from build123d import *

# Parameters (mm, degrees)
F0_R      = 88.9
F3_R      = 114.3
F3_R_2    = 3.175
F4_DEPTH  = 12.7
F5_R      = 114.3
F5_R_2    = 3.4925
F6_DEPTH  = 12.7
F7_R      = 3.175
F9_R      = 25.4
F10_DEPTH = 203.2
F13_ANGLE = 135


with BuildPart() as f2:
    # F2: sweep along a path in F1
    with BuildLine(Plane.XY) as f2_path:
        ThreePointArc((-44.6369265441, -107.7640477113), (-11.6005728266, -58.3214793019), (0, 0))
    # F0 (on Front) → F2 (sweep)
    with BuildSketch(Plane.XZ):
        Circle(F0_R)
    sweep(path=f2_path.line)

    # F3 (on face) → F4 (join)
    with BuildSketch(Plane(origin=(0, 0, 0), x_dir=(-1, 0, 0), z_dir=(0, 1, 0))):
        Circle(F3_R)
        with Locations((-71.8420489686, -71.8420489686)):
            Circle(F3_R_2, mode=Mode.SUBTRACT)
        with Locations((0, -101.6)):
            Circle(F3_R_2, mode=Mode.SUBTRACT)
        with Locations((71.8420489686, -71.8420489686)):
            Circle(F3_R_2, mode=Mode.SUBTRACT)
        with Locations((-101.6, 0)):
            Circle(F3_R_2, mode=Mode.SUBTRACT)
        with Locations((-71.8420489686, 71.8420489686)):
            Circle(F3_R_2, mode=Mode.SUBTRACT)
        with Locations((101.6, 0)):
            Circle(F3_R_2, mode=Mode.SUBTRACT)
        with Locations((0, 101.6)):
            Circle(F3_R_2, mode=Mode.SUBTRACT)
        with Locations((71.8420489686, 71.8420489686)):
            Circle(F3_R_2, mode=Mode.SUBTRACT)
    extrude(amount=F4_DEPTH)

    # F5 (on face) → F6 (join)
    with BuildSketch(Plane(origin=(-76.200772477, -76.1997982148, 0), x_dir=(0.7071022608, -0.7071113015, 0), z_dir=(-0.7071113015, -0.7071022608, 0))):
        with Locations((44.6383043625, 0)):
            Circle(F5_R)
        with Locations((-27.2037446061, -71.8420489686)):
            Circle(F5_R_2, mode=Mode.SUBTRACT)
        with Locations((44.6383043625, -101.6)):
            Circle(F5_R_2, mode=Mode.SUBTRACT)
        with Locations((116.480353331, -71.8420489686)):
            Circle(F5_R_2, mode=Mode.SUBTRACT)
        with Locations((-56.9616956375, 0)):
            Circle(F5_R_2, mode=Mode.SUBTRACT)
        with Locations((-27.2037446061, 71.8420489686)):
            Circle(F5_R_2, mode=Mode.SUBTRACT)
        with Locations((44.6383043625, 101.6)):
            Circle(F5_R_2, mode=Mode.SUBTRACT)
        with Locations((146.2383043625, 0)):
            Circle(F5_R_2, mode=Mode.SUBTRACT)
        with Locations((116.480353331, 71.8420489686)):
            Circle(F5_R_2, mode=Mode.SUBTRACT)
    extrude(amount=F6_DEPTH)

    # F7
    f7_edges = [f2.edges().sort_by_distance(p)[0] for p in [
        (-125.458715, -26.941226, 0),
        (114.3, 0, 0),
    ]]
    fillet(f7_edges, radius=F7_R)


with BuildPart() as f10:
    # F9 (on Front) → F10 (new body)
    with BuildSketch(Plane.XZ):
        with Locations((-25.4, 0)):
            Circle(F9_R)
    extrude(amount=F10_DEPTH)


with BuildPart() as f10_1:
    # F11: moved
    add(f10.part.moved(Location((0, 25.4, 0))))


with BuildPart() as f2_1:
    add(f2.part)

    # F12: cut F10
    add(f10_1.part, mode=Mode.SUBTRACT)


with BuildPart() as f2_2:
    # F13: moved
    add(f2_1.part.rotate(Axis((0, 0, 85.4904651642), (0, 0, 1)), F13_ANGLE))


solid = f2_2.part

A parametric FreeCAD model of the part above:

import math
import FreeCAD as App
import Part
import Sketcher
from FreeCAD import Vector
Q = App.Units.Quantity


def edges_at(feature, points):
    """Names of the edges that pass closest to the given points."""
    edges = feature.Shape.Edges
    near = lambda p: min(range(len(edges)), key=lambda i: edges[i].distToShape(Part.Vertex(*p))[0])
    return sorted({f"Edge{near(p) + 1}" for p in points})

doc = App.newDocument("Part")
body = doc.addObject("PartDesign::Body", "Body")

# Sketch on XZ plane
sketch1 = doc.addObject("Sketcher::SketchObject", "Sketch")
body.addObject(sketch1)
sketch1.AttachmentSupport = (doc.XZ_Plane, [""])
sketch1.MapMode = "FlatFace"
sketch1.addGeometry(Part.Circle(Vector(0, 0, 0), Vector(0, 0, 1), 88.9), False)
sketch1.addConstraint(Sketcher.Constraint("Coincident", 0, 3, -1, 1))
sketch1.addConstraint(Sketcher.Constraint("Diameter", 0, Q("7 in")))

# Sketch on XY plane
sketch2 = doc.addObject("Sketcher::SketchObject", "Sketch001")
body.addObject(sketch2)
sketch2.AttachmentSupport = (doc.XY_Plane, [""])
sketch2.MapMode = "FlatFace"
sketch2.addGeometry(Part.ArcOfCircle(Part.Circle(Vector(-152.4, -0.000974, 0), Vector(0, 0, 1), 152.4), math.radians(-45), math.radians(0.000366)), False)
sketch2.addConstraint(Sketcher.Constraint("Coincident", 0, 2, -1, 1))
sketch2.addConstraint(Sketcher.Constraint("Radius", 0, Q("6 in")))
sketch2.addConstraint(Sketcher.Constraint("DistanceY", 0, 3, -1, 1, Q("0.000974 mm")))
sketch2.addConstraint(Sketcher.Constraint("DistanceX", 0, 1, -1, 1, Q("44.636927 mm")))
doc.recompute()

additivepipe = doc.addObject("PartDesign::AdditivePipe", "AdditivePipe")
body.addObject(additivepipe)
additivepipe.Profile = sketch1
additivepipe.Spine = (sketch2, ["Edge1"])

# Sketch on XZ plane
sketch3 = doc.addObject("Sketcher::SketchObject", "Sketch002")
body.addObject(sketch3)
sketch3.AttachmentSupport = (doc.XZ_Plane, [""])
sketch3.MapMode = "FlatFace"
sketch3.addGeometry(Part.Circle(Vector(0, 0, 0), Vector(0, 0, 1), 114.3), False)
sketch3.addGeometry(Part.Circle(Vector(71.842049, -71.842049, 0), Vector(0, 0, 1), 3.175), False)
sketch3.addGeometry(Part.Circle(Vector(0, -101.6, 0), Vector(0, 0, 1), 3.175), False)
sketch3.addGeometry(Part.Circle(Vector(101.6, 0, 0), Vector(0, 0, 1), 3.175), False)
sketch3.addGeometry(Part.Circle(Vector(-71.842049, -71.842049, 0), Vector(0, 0, 1), 3.175), False)
sketch3.addGeometry(Part.Circle(Vector(-101.6, 0, 0), Vector(0, 0, 1), 3.175), False)
sketch3.addGeometry(Part.Circle(Vector(71.842049, 71.842049, 0), Vector(0, 0, 1), 3.175), False)
sketch3.addGeometry(Part.Circle(Vector(0, 101.6, 0), Vector(0, 0, 1), 3.175), False)
sketch3.addGeometry(Part.Circle(Vector(-71.842049, 71.842049, 0), Vector(0, 0, 1), 3.175), False)
sketch3.addConstraint(Sketcher.Constraint("Coincident", 0, 3, -1, 1))
sketch3.addConstraint(Sketcher.Constraint("Equal", 1, 2))
sketch3.addConstraint(Sketcher.Constraint("Equal", 2, 3))
sketch3.addConstraint(Sketcher.Constraint("Equal", 3, 4))
sketch3.addConstraint(Sketcher.Constraint("Equal", 4, 5))
sketch3.addConstraint(Sketcher.Constraint("Equal", 5, 6))
sketch3.addConstraint(Sketcher.Constraint("Equal", 6, 7))
sketch3.addConstraint(Sketcher.Constraint("Equal", 7, 8))
sketch3.addConstraint(Sketcher.Constraint("Symmetric", 3, 3, 5, 3, -1, 1))
sketch3.addConstraint(Sketcher.Constraint("Symmetric", 4, 3, 6, 3, -1, 1))
sketch3.addConstraint(Sketcher.Constraint("Symmetric", 2, 3, 7, 3, -1, 1))
sketch3.addConstraint(Sketcher.Constraint("Symmetric", 1, 3, 8, 3, -1, 1))
sketch3.addConstraint(Sketcher.Constraint("Symmetric", 1, 3, 4, 3, -2))
sketch3.addConstraint(Sketcher.Constraint("PointOnObject", 2, 3, -2))
sketch3.addConstraint(Sketcher.Constraint("PointOnObject", 3, 3, -1))
sketch3.addConstraint(Sketcher.Constraint("Diameter", 0, Q("9 in")))
sketch3.addConstraint(Sketcher.Constraint("Diameter", 1, Q("0.25 in")))
sketch3.addConstraint(Sketcher.Constraint("DistanceY", 2, 3, -1, 1, Q("4 in")))
sketch3.addConstraint(Sketcher.Constraint("DistanceX", -1, 1, 3, 3, Q("4 in")))
sketch3.addConstraint(Sketcher.Constraint("DistanceX", -1, 1, 1, 3, Q("71.842049 mm")))
sketch3.addConstraint(Sketcher.Constraint("DistanceY", 1, 3, -1, 1, Q("71.842049 mm")))
pad1 = doc.addObject("PartDesign::Pad", "Pad")
body.addObject(pad1)
pad1.Profile = sketch3
pad1.Length = Q("0.5 in")
pad1.Reversed = True

# Sketch on an angled plane
sketch4 = doc.addObject("Sketcher::SketchObject", "Sketch003")
body.addObject(sketch4)
sketch4.Placement = App.Placement(Vector(-76.200772, -76.199798, 0), App.Rotation(Vector(0.707102261, -0.707111302, 0), Vector(0, 0, 1.000000001), Vector(-0.707111302, -0.707102261, 0), "ZXY"))
sketch4.addGeometry(Part.Circle(Vector(44.638304, 0, 0), Vector(0, 0, 1), 114.3), False)
sketch4.addGeometry(Part.Circle(Vector(-27.203745, -71.842049, 0), Vector(0, 0, 1), 3.4925), False)
sketch4.addGeometry(Part.Circle(Vector(44.638304, -101.6, 0), Vector(0, 0, 1), 3.4925), False)
sketch4.addGeometry(Part.Circle(Vector(-56.961696, 0, 0), Vector(0, 0, 1), 3.4925), False)
sketch4.addGeometry(Part.Circle(Vector(116.480353, -71.842049, 0), Vector(0, 0, 1), 3.4925), False)
sketch4.addGeometry(Part.Circle(Vector(146.238304, 0, 0), Vector(0, 0, 1), 3.4925), False)
sketch4.addGeometry(Part.Circle(Vector(-27.203745, 71.842049, 0), Vector(0, 0, 1), 3.4925), False)
sketch4.addGeometry(Part.Circle(Vector(44.638304, 101.6, 0), Vector(0, 0, 1), 3.4925), False)
sketch4.addGeometry(Part.Circle(Vector(116.480353, 71.842049, 0), Vector(0, 0, 1), 3.4925), False)
sketch4.addConstraint(Sketcher.Constraint("Equal", 1, 2))
sketch4.addConstraint(Sketcher.Constraint("Equal", 2, 3))
sketch4.addConstraint(Sketcher.Constraint("Equal", 3, 4))
sketch4.addConstraint(Sketcher.Constraint("Equal", 4, 5))
sketch4.addConstraint(Sketcher.Constraint("Equal", 5, 6))
sketch4.addConstraint(Sketcher.Constraint("Equal", 6, 7))
sketch4.addConstraint(Sketcher.Constraint("Equal", 7, 8))
sketch4.addConstraint(Sketcher.Constraint("Symmetric", 1, 3, 6, 3, -1))
sketch4.addConstraint(Sketcher.Constraint("Symmetric", 2, 3, 7, 3, -1))
sketch4.addConstraint(Sketcher.Constraint("Symmetric", 4, 3, 8, 3, -1))
sketch4.addConstraint(Sketcher.Constraint("PointOnObject", 0, 3, -1))
sketch4.addConstraint(Sketcher.Constraint("PointOnObject", 3, 3, -1))
sketch4.addConstraint(Sketcher.Constraint("PointOnObject", 5, 3, -1))
sketch4.addConstraint(Sketcher.Constraint("Horizontal", 1, 3, 4, 3))
sketch4.addConstraint(Sketcher.Constraint("Vertical", 0, 3, 2, 3))
sketch4.addConstraint(Sketcher.Constraint("Diameter", 0, Q("9 in")))
sketch4.addConstraint(Sketcher.Constraint("Diameter", 1, Q("0.275 in")))
sketch4.addConstraint(Sketcher.Constraint("DistanceY", 2, 3, -1, 1, Q("4 in")))
sketch4.addConstraint(Sketcher.Constraint("DistanceX", 3, 3, 0, 3, Q("4 in")))
sketch4.addConstraint(Sketcher.Constraint("DistanceX", 0, 3, 5, 3, Q("4 in")))
sketch4.addConstraint(Sketcher.Constraint("DistanceX", 1, 3, 4, 3, Q("143.684098 mm")))
sketch4.addConstraint(Sketcher.Constraint("DistanceY", 1, 3, 6, 3, Q("143.684098 mm")))
sketch4.addConstraint(Sketcher.Constraint("DistanceX", 1, 3, 0, 3, Q("71.842049 mm")))
sketch4.addConstraint(Sketcher.Constraint("DistanceX", -1, 1, 0, 3, Q("44.638304 mm")))
pad2 = doc.addObject("PartDesign::Pad", "Pad001")
body.addObject(pad2)
pad2.Profile = sketch4
pad2.Length = Q("0.5 in")
doc.recompute()

fillet = doc.addObject("PartDesign::Fillet", "Fillet")
body.addObject(fillet)
fillet.Base = (pad2, edges_at(pad2, [(-125.459, -26.941, 0), (114.3, 0, 0)]))
fillet.Radius = Q("0.125 in")
body2 = doc.addObject("PartDesign::Body", "Body001")

# Sketch on XZ plane
sketch5 = doc.addObject("Sketcher::SketchObject", "Sketch004")
body2.addObject(sketch5)
sketch5.AttachmentSupport = (doc.getObject("XZ_Plane001"), [""])
sketch5.MapMode = "FlatFace"
sketch5.addGeometry(Part.Circle(Vector(-25.4, 0, 0), Vector(0, 0, 1), 25.4), False)
sketch5.addConstraint(Sketcher.Constraint("PointOnObject", 0, 3, -1))
sketch5.addConstraint(Sketcher.Constraint("Diameter", 0, Q("2 in")))
sketch5.addConstraint(Sketcher.Constraint("DistanceX", 0, 3, -1, 1, Q("1 in")))
pad3 = doc.addObject("PartDesign::Pad", "Pad002")
body2.addObject(pad3)
pad3.Profile = sketch5
pad3.Length = Q("8 in")
body3 = doc.addObject("PartDesign::Body", "Body002")
doc.recompute()

body2.Placement = App.Placement(Vector(0, 25.4, 0), App.Rotation(Vector(0, 0, 1), 0))
boolean = doc.addObject("PartDesign::Boolean", "Boolean")
body3.addObject(boolean)
boolean.Type = "Fuse"
boolean.addObjects([body2])
doc.recompute()

boolean2 = doc.addObject("PartDesign::Boolean", "Boolean001")
body.addObject(boolean2)
boolean2.Type = "Cut"
boolean2.addObjects([body3])
body4 = doc.addObject("PartDesign::Body", "Body003")
doc.recompute()

body.Placement = App.Placement(Vector(0, 0, 0), App.Rotation(Vector(0, 0, 1), 135))
boolean3 = doc.addObject("PartDesign::Boolean", "Boolean002")
body4.addObject(boolean3)
boolean3.Type = "Fuse"
boolean3.addObjects([body])

doc.recompute()
